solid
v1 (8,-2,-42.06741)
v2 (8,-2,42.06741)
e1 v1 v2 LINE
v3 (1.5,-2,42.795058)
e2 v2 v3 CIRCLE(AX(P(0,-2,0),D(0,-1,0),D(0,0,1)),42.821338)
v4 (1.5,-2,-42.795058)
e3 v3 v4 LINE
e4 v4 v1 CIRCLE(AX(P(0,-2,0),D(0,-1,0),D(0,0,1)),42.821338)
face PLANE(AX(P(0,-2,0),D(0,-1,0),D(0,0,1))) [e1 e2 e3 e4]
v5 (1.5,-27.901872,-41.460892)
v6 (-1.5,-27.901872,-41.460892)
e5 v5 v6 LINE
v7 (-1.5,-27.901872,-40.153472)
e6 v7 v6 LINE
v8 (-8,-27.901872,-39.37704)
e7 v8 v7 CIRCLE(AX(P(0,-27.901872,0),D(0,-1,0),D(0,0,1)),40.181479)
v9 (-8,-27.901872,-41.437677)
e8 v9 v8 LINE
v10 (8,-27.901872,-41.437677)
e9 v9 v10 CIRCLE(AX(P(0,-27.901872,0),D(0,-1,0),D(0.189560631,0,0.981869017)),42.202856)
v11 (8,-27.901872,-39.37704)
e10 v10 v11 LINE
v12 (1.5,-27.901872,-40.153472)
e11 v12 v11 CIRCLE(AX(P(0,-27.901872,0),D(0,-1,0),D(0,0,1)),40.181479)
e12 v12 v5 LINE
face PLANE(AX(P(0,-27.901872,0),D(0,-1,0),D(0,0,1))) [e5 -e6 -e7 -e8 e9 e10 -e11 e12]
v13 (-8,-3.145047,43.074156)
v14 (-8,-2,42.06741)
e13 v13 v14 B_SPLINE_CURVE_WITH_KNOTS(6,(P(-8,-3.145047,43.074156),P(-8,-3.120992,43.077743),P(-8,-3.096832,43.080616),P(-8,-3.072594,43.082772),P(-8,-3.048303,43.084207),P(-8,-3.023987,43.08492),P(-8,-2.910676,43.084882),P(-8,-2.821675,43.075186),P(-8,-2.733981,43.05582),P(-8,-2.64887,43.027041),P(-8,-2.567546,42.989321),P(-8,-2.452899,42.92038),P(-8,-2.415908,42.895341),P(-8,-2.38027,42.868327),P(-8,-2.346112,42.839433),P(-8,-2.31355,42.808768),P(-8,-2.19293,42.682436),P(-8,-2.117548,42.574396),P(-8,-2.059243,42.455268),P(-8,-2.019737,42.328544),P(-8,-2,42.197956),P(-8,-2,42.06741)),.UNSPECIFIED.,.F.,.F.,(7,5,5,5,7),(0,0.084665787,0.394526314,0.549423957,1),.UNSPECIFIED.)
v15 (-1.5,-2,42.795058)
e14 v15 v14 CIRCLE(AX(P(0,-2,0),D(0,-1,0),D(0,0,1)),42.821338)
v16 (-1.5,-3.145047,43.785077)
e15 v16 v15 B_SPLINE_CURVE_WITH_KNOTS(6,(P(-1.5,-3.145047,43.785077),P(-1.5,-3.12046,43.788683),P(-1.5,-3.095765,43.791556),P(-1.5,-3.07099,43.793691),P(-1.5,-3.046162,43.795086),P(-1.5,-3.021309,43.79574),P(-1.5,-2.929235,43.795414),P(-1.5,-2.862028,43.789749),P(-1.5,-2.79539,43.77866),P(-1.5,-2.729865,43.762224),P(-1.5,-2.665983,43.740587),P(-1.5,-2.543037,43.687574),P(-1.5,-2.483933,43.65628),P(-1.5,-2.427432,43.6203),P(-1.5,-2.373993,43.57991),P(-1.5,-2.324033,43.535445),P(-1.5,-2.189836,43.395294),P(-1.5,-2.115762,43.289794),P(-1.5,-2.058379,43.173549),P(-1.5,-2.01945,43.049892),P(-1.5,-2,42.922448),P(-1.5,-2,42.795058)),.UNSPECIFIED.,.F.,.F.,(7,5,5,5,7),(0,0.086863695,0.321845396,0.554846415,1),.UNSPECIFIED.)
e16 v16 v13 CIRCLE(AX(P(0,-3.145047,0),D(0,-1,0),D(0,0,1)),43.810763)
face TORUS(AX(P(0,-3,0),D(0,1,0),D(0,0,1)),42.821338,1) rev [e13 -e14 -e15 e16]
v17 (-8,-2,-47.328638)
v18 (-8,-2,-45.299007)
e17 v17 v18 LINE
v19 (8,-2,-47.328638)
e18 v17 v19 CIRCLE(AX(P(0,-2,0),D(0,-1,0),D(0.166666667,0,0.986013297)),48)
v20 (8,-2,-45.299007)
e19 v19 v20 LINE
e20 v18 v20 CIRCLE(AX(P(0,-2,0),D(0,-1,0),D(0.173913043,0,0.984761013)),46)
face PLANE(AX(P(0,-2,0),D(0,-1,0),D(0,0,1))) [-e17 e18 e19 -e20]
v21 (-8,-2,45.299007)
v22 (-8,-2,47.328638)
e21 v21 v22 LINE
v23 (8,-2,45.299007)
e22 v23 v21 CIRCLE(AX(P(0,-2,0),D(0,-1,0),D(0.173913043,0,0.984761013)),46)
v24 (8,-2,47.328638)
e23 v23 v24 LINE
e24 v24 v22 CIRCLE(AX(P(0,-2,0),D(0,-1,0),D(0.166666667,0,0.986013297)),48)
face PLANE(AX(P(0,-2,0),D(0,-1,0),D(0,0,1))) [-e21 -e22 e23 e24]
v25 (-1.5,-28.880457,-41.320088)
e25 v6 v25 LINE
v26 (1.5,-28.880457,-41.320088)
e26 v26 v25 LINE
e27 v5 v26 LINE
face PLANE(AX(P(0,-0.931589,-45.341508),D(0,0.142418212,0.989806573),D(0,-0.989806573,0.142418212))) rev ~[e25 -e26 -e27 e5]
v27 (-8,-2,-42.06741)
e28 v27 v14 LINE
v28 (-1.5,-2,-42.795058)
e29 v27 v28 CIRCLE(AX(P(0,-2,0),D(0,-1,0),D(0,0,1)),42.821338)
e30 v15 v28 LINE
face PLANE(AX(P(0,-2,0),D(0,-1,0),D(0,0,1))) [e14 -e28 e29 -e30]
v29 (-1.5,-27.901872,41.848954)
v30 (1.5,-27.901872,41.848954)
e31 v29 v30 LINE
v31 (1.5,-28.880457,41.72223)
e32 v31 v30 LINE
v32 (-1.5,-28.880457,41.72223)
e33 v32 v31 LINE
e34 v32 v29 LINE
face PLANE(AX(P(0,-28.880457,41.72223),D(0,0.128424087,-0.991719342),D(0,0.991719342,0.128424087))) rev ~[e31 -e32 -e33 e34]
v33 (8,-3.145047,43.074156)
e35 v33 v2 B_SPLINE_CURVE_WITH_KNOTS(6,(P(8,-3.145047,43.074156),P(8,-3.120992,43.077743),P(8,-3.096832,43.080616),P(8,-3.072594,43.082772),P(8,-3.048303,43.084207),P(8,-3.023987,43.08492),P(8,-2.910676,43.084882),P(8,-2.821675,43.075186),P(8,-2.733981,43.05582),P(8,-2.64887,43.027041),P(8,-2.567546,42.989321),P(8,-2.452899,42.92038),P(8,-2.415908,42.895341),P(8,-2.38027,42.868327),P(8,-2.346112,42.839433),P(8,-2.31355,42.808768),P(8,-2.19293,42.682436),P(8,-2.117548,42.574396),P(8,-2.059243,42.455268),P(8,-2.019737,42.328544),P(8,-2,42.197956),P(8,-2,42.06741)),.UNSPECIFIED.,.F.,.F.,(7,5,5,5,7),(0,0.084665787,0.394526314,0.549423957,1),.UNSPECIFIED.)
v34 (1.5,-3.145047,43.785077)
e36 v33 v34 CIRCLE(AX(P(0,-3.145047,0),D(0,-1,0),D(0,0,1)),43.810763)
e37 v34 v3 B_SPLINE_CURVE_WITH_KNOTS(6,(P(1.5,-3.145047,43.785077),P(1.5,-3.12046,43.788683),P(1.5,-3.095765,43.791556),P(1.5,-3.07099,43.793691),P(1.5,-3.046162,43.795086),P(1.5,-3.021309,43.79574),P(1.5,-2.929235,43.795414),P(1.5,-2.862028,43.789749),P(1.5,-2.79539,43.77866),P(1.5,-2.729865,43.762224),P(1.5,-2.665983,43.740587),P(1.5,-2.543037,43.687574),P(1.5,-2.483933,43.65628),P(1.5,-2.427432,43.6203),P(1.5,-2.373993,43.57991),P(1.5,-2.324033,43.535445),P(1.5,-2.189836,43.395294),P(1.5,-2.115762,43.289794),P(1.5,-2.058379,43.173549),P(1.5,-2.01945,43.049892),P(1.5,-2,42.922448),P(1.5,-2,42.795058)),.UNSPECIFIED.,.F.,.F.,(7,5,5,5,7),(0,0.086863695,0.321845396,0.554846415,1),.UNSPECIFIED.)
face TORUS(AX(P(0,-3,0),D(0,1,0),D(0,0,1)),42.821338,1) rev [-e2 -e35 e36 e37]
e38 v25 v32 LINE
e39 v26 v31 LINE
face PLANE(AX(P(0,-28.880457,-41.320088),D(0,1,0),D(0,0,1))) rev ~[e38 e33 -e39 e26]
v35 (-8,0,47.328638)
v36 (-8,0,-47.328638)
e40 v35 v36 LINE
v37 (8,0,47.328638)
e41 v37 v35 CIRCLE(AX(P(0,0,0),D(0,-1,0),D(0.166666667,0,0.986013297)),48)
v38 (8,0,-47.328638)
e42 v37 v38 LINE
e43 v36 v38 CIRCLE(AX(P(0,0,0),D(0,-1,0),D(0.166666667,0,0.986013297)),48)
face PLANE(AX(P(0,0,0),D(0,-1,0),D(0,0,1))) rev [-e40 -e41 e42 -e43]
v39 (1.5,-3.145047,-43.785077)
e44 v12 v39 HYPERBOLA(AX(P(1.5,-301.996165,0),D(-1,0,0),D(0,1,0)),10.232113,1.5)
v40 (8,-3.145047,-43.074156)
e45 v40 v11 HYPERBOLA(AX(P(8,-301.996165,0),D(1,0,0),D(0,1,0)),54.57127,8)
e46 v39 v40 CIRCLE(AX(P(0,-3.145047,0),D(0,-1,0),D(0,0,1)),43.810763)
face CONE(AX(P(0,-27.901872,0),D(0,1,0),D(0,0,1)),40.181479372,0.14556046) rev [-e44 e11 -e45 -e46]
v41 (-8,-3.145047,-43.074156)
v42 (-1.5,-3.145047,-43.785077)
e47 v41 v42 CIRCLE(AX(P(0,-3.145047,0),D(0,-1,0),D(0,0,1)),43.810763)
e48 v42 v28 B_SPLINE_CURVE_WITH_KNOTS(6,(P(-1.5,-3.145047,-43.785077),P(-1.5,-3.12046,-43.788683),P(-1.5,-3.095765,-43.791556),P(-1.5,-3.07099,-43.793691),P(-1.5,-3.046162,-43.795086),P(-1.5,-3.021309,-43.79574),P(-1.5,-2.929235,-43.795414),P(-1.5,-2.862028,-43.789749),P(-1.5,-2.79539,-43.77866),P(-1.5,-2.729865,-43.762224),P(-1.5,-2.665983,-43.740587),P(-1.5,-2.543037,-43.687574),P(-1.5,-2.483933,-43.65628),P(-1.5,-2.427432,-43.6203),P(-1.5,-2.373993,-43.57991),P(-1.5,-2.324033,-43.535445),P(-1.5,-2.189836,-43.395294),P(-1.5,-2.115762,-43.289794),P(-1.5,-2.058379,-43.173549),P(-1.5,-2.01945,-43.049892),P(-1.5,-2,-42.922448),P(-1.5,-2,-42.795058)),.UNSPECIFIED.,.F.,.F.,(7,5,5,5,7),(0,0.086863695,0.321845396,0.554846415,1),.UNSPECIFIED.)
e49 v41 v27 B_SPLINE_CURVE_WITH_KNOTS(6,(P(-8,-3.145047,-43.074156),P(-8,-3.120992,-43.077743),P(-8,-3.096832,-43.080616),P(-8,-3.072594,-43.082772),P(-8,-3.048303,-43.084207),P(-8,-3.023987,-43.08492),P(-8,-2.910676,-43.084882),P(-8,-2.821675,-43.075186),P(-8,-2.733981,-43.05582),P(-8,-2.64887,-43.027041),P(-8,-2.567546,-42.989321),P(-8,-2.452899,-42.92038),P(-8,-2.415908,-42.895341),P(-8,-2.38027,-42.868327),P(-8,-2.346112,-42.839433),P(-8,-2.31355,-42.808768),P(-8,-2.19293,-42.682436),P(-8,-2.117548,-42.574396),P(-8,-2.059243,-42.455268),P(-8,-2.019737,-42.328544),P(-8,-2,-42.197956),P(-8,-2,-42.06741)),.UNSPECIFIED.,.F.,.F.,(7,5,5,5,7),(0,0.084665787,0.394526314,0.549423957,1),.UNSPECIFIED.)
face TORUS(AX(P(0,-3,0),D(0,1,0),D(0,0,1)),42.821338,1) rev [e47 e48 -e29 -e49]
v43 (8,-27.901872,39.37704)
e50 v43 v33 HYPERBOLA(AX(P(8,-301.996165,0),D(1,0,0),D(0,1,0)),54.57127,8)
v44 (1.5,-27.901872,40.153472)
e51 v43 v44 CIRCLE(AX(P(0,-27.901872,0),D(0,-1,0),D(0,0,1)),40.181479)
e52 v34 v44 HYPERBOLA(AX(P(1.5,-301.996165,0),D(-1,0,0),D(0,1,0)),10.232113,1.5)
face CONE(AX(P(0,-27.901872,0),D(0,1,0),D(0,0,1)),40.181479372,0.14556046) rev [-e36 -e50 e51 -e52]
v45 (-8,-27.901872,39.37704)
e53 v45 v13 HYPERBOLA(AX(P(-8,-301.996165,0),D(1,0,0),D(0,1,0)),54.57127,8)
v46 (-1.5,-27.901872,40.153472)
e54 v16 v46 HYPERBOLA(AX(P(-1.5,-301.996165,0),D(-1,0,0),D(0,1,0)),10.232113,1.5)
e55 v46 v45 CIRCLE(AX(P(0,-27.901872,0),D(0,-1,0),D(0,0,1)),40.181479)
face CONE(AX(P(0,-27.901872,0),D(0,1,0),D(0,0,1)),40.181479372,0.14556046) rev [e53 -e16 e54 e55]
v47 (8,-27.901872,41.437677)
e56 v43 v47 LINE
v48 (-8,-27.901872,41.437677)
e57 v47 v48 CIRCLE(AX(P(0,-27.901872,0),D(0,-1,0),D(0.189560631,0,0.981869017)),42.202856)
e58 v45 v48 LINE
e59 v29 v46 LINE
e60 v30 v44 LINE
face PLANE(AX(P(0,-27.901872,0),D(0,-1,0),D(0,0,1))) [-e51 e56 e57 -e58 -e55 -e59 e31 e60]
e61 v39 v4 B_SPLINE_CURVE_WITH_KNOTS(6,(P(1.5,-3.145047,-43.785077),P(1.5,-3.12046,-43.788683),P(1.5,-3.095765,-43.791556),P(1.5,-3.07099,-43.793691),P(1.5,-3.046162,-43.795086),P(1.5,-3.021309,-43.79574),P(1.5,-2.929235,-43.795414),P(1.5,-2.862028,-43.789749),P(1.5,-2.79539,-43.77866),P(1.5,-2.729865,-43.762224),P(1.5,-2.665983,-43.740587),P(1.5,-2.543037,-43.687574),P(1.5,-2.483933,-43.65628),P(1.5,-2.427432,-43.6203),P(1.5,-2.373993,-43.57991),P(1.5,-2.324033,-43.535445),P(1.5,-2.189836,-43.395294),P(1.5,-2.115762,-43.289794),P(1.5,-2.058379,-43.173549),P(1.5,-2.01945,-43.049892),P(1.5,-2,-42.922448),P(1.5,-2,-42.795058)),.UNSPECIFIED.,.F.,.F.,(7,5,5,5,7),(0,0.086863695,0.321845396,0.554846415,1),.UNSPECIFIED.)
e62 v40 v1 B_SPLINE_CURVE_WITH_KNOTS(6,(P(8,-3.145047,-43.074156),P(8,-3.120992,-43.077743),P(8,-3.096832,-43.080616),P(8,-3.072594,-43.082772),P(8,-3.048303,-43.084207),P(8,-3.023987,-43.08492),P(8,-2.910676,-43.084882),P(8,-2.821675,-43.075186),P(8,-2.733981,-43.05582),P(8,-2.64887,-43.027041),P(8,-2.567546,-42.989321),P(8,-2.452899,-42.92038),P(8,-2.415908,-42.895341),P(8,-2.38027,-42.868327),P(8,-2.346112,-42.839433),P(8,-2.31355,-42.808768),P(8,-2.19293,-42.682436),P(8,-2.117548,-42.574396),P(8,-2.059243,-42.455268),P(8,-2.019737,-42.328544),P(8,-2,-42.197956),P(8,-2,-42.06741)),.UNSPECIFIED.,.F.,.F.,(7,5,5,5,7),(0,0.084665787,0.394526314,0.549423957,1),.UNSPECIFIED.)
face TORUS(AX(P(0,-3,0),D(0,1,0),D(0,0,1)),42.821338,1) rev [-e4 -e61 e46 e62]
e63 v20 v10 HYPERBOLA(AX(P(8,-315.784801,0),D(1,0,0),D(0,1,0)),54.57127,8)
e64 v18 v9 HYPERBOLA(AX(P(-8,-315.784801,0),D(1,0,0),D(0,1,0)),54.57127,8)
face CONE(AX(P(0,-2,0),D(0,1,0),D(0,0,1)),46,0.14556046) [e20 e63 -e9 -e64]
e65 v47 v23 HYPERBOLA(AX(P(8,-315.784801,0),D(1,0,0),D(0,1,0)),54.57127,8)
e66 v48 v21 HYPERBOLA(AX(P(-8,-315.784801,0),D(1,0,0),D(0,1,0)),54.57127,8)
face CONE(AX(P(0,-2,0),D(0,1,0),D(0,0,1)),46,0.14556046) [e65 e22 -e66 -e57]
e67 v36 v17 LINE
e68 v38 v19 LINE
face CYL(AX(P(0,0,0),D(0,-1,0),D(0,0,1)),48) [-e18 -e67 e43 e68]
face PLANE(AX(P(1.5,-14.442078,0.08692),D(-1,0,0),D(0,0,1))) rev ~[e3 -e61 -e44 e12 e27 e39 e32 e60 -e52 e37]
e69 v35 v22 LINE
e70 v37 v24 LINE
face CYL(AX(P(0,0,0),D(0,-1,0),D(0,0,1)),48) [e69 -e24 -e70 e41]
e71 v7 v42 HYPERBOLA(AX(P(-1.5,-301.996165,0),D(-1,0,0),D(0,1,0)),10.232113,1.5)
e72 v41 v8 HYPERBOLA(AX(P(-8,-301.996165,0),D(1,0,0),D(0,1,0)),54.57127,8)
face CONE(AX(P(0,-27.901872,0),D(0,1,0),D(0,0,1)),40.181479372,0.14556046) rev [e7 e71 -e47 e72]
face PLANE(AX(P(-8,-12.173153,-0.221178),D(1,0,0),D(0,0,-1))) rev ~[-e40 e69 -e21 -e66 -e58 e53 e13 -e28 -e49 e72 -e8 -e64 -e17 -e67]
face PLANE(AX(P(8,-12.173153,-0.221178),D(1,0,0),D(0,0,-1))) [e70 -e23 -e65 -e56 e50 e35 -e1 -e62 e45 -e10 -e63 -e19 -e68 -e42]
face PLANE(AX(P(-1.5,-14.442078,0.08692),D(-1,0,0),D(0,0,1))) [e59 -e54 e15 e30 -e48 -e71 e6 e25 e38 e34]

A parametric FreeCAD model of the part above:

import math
import FreeCAD as App
import Part
import Sketcher

V = App.Vector
Q = App.Units.Quantity


def add_polygon(sketch, points):
    """Adds a closed chain of lines whose ends are joined by coincident constraints."""
    first, n = sketch.GeometryCount, len(points)
    for a, b in zip(points, points[1:] + points[:1]):
        sketch.addGeometry(Part.LineSegment(App.Vector(*a, 0), App.Vector(*b, 0)), False)
    for i in range(n):
        sketch.addConstraint(Sketcher.Constraint("Coincident", first + i, 2, first + (i + 1) % n, 1))

doc = App.newDocument("Part")
body = doc.addObject("PartDesign::Body", "Body")

# Sketch on XY plane
sketch1 = body.newObject("Sketcher::SketchObject", "Sketch")
sketch1.AttachmentSupport = (doc.getObject("XY_Plane"), [""])
sketch1.MapMode = "FlatFace"
sketch1.addGeometry([
    Part.LineSegment(V(0, 0, 0), V(-48, 0, 0)),  # 0
    Part.LineSegment(V(-48, 0, 0), V(-48, -2, 0)),  # 1
    Part.LineSegment(V(-48, -2, 0), V(-46, -2, 0)),  # 2
    Part.LineSegment(V(-46, -2, 0), V(-42.2, -27.9, 0)),  # 3
    Part.LineSegment(V(-42.2, -27.9, 0), V(-40.2, -27.9, 0)),  # 4
    Part.LineSegment(V(-40.2, -27.9, 0), V(-43.8, -3.1, 0)),  # 5
    Part.ArcOfCircle(Part.Circle(V(-42.8, -3, 0), V(0, 0, 1), 1), math.radians(90), math.radians(188)),  # 6
    Part.LineSegment(V(-42.8, -2, 0), V(0, -2, 0)),  # 7
    Part.LineSegment(V(0, -2, 0), V(0, 0, 0)),  # 8
], False)
sketch1.addConstraint([
    Sketcher.Constraint("Coincident", 0, 2, 1, 1),
    Sketcher.Constraint("Coincident", 1, 2, 2, 1),
    Sketcher.Constraint("Coincident", 2, 2, 3, 1),
    Sketcher.Constraint("Coincident", 3, 2, 4, 1),
    Sketcher.Constraint("Coincident", 4, 2, 5, 1),
    Sketcher.Constraint("Tangent", 5, 2, 6, 2),
    Sketcher.Constraint("Tangent", 6, 1, 7, 1),
    Sketcher.Constraint("Coincident", 7, 2, 8, 1),
    Sketcher.Constraint("Coincident", 8, 2, 0, 1),
    Sketcher.Constraint("Horizontal", 0),
    Sketcher.Constraint("Vertical", 1),
    Sketcher.Constraint("Horizontal", 2),
    Sketcher.Constraint("Horizontal", 4),
    Sketcher.Constraint("Horizontal", 7),
    Sketcher.Constraint("Vertical", 8),
    Sketcher.Constraint("Coincident", 8, 2, -1, 1),
    Sketcher.Constraint("Parallel", 3, 5),
    Sketcher.Constraint("Horizontal", 2, 2, 6, 1),
    Sketcher.Constraint("Equal", 2, 1),
    Sketcher.Constraint("Radius", 6, 1.0),
    Sketcher.Constraint("DistanceX", 0, 2, 0, 1, 48.0),
    Sketcher.Constraint("DistanceX", 2, 1, 2, 2, 2.0),
    Sketcher.Constraint("Angle", 3, Q("-81.66 deg")),
    Sketcher.Constraint("DistanceX", 4, 1, 4, 2, 2.021377),
    Sketcher.Constraint("DistanceY", 3, 2, -1, 1, 27.901872),
])
revolution = body.newObject("PartDesign::Revolution", "Revolution")
revolution.Profile = sketch1
revolution.ReferenceAxis = (sketch1, ["V_Axis"])
revolution.Angle = 360

# Sketch on YZ plane
sketch2 = body.newObject("Sketcher::SketchObject", "Sketch001")
sketch2.AttachmentSupport = (doc.getObject("YZ_Plane"), [""])
sketch2.MapMode = "FlatFace"
add_polygon(sketch2, [(-1, -45), (-1, 45), (-29, 42), (-29, -41)])  # lines 0-3
sketch2.addConstraint([
    Sketcher.Constraint("Vertical", 0),
    Sketcher.Constraint("Vertical", 2),
    Sketcher.Constraint("DistanceY", 2, 2, 2, 1, 83.042319),
    Sketcher.Constraint("DistanceY", 0, 1, 0, 2, 90.683016),
    Sketcher.Constraint("DistanceX", 0, 2, -1, 1, 0.931589),
    Sketcher.Constraint("DistanceY", -1, 1, 0, 2, 45.341508),
    Sketcher.Constraint("DistanceY", -1, 1, 1, 2, 41.72223),
    Sketcher.Constraint("Distance", 1, 28.182235),
])
pad1 = body.newObject("PartDesign::Pad", "Pad")
pad1.Profile = sketch2
pad1.Length = 3
pad1.Midplane = True

# Sketch on YZ plane
sketch3 = body.newObject("Sketcher::SketchObject", "Sketch002")
sketch3.AttachmentSupport = (doc.getObject("YZ_Plane"), [""])
sketch3.MapMode = "FlatFace"
sketch3.AttachmentOffset = App.Placement(V(0, 0, 8), App.Rotation())
add_polygon(sketch3, [(15, 61), (-39, 61), (-39, -62), (15, -62)])  # lines 0-3
sketch3.addConstraint([
    Sketcher.Constraint("Horizontal", 0),
    Sketcher.Constraint("Vertical", 1),
    Sketcher.Constraint("Horizontal", 2),
    Sketcher.Constraint("Vertical", 3),
    Sketcher.Constraint("DistanceX", 0, 2, -1, 1, 38.935702),
    Sketcher.Constraint("DistanceX", 0, 2, 0, 1, 53.525097),
    Sketcher.Constraint("DistanceY", 1, 2, 1, 1, 123.196195),
    Sketcher.Constraint("DistanceY", -1, 1, 0, 2, 61.37692),
])
pocket1 = body.newObject("PartDesign::Pocket", "Pocket")
pocket1.Profile = sketch3
pocket1.Length = 111
pocket1.Reversed = True

# Sketch on YZ plane
sketch4 = body.newObject("Sketcher::SketchObject", "Sketch003")
sketch4.AttachmentSupport = (doc.getObject("YZ_Plane"), [""])
sketch4.MapMode = "FlatFace"
sketch4.AttachmentOffset = App.Placement(V(0, 0, -8), App.Rotation())
add_polygon(sketch4, [(15, 61), (-39, 61), (-39, -62), (15, -62)])  # lines 0-3
sketch4.addConstraint([
    Sketcher.Constraint("Horizontal", 0),
    Sketcher.Constraint("Vertical", 1),
    Sketcher.Constraint("Horizontal", 2),
    Sketcher.Constraint("Vertical", 3),
    Sketcher.Constraint("DistanceX", 0, 2, -1, 1, 38.935702),
    Sketcher.Constraint("DistanceX", 0, 2, 0, 1, 53.525097),
    Sketcher.Constraint("DistanceY", 1, 2, 1, 1, 123.196195),
    Sketcher.Constraint("DistanceY", -1, 1, 0, 2, 61.37692),
])
pocket2 = body.newObject("PartDesign::Pocket", "Pocket001")
pocket2.Profile = sketch4
pocket2.Length = 111

doc.recompute()
